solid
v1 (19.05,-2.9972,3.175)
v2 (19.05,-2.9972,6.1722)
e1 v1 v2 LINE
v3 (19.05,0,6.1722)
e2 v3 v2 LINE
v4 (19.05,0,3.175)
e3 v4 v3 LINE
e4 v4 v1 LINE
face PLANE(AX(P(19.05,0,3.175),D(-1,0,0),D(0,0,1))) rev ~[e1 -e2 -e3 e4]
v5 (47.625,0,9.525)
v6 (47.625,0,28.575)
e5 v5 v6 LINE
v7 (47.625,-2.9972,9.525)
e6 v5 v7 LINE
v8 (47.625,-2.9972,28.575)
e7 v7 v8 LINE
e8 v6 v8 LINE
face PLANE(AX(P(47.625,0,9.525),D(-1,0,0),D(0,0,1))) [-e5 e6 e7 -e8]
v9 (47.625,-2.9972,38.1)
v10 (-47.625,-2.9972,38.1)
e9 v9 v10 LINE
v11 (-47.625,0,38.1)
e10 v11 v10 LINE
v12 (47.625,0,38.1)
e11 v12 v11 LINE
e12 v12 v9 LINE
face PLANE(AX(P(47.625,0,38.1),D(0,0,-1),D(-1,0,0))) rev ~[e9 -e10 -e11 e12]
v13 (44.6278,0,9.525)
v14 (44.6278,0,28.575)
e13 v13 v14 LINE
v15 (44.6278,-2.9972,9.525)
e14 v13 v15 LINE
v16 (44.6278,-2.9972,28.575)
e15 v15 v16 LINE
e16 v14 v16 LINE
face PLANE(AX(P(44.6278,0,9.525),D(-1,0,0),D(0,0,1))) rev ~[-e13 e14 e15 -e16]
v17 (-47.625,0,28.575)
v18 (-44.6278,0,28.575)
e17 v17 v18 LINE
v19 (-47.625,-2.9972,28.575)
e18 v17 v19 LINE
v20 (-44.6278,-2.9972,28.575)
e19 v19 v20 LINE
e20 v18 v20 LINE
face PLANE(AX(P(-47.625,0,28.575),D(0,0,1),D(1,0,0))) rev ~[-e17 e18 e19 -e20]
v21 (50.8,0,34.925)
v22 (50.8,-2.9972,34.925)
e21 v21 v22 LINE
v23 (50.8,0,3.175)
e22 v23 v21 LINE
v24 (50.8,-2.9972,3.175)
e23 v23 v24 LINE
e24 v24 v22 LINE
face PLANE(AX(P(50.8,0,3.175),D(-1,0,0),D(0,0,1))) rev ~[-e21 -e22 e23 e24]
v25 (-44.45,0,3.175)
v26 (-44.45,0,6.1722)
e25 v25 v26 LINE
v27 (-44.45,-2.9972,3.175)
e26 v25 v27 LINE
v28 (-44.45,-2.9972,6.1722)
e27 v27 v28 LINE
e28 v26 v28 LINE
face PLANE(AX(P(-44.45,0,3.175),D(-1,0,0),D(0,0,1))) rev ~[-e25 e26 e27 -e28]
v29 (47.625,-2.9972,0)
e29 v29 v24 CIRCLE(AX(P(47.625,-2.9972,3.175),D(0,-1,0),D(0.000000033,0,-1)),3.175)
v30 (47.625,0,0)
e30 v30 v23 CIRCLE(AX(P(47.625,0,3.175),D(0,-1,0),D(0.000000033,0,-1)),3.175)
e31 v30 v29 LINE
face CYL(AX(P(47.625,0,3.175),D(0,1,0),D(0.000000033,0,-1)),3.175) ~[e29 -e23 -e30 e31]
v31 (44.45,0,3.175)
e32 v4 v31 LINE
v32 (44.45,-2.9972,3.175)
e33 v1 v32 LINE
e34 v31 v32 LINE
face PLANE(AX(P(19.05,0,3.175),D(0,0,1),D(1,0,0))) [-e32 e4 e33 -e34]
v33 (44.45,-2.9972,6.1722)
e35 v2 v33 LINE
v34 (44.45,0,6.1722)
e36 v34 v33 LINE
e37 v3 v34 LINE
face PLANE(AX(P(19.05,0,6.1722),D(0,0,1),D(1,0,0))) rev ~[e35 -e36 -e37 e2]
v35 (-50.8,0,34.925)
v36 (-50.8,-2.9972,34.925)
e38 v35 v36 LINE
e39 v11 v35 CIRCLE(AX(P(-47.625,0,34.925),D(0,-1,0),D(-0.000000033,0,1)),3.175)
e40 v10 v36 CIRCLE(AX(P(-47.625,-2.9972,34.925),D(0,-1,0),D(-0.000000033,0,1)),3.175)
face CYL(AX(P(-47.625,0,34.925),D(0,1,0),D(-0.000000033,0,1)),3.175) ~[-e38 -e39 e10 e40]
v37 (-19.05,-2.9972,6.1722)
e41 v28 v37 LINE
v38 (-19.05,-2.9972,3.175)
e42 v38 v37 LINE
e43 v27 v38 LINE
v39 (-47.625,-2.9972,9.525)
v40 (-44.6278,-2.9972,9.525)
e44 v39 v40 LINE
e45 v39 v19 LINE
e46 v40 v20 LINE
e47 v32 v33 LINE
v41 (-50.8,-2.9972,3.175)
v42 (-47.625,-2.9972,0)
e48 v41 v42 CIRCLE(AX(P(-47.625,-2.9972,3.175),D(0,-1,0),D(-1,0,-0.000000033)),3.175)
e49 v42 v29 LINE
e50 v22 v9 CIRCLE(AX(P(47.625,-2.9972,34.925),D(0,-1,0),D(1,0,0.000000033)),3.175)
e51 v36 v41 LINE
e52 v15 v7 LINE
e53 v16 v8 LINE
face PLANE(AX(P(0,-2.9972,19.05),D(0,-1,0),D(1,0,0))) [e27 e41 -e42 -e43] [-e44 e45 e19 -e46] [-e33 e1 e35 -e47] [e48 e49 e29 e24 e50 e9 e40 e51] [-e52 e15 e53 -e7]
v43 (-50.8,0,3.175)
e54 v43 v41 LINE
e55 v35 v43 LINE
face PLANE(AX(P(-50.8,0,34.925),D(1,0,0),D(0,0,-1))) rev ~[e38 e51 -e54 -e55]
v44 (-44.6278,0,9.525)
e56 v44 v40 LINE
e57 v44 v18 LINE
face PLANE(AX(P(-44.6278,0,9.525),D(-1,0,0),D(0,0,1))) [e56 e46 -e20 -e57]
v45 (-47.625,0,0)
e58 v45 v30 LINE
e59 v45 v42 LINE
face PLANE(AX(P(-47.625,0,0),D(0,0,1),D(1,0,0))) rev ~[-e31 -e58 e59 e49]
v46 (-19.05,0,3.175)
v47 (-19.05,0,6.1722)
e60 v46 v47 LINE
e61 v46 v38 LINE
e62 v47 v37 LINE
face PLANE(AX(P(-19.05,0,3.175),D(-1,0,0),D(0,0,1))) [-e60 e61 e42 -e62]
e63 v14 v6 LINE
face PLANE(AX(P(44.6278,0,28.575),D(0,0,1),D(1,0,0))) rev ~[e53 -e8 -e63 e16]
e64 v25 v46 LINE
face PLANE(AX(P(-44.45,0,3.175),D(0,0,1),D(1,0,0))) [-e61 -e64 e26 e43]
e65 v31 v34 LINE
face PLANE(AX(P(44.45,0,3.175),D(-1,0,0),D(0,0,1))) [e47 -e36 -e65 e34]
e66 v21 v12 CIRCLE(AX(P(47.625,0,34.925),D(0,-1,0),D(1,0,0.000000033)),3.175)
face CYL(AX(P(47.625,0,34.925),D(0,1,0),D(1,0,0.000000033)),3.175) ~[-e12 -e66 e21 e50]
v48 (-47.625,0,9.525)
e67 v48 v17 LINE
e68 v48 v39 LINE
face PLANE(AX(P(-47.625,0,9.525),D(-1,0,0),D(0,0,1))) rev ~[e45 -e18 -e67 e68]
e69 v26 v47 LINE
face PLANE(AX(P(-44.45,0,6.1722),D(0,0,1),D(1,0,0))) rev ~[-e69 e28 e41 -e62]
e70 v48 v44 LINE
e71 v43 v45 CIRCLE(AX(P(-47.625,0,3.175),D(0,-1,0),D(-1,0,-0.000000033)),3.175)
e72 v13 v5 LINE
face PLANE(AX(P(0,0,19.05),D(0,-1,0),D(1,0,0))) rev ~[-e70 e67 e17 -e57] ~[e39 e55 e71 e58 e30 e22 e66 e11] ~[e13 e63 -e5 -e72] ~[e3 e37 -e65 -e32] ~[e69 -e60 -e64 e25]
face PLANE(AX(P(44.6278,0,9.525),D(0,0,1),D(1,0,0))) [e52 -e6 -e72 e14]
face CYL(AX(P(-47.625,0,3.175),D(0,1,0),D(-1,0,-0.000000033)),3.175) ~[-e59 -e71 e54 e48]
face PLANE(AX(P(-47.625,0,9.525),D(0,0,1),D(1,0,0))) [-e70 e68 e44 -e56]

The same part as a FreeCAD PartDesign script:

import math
import FreeCAD as App
import Part
import Sketcher
from FreeCAD import Vector
Q = App.Units.Quantity

doc = App.newDocument("Part")
params = doc.addObject("Spreadsheet::Sheet", "Params")
for row, (alias, value) in enumerate([
    ("sketch1_width", "1 in"),
    ("sketch1_radius", "0.125 in"),
    ("sketch1_height", "1.25 in"),
    ("sketch1_height2", "0.75 in"),
    ("sketch1_width2", "0.118 in"),
    ("pad1_length", "0.118 in"),
], start=1):
    params.set(f"A{row}", alias)
    params.set(f"B{row}", "=" + value)
    params.setAlias(f"B{row}", alias)

body = doc.addObject("PartDesign::Body", "Body")

sketch1 = body.newObject("Sketcher::SketchObject", "Sketch")
sketch1.AttachmentSupport = (doc.getObject("XZ_Plane"), [""])
sketch1.MapMode = "FlatFace"
sketch1.addGeometry([
    Part.ArcOfCircle(Part.Circle(Vector(-47.6, 3.2, 0), Vector(0, 0, 1), 3.2), math.radians(-180), math.radians(-90)),
    Part.LineSegment(Vector(-47.6, 0, 0), Vector(47.6, 0, 0)),
    Part.ArcOfCircle(Part.Circle(Vector(47.6, 3.2, 0), Vector(0, 0, 1), 3.2), math.radians(-90), math.radians(0)),
    Part.LineSegment(Vector(50.8, 3.2, 0), Vector(50.8, 34.9, 0)),
    Part.ArcOfCircle(Part.Circle(Vector(47.6, 34.9, 0), Vector(0, 0, 1), 3.2), math.radians(0), math.radians(90)),
    Part.LineSegment(Vector(47.6, 38.1, 0), Vector(-47.6, 38.1, 0)),
    Part.ArcOfCircle(Part.Circle(Vector(-47.6, 34.9, 0), Vector(0, 0, 1), 3.2), math.radians(90), math.radians(180)),
    Part.LineSegment(Vector(-50.8, 34.9, 0), Vector(-50.8, 3.2, 0)),
    Part.LineSegment(Vector(-19.1, 3.2, 0), Vector(-44.5, 3.2, 0)),
    Part.LineSegment(Vector(-44.5, 3.2, 0), Vector(-44.5, 6.2, 0)),
    Part.LineSegment(Vector(-44.5, 6.2, 0), Vector(-19.1, 6.2, 0)),
    Part.LineSegment(Vector(-19.1, 6.2, 0), Vector(-19.1, 3.2, 0)),
    Part.LineSegment(Vector(44.5, 3.2, 0), Vector(19.1, 3.2, 0)),
    Part.LineSegment(Vector(19.1, 3.2, 0), Vector(19.1, 6.2, 0)),
    Part.LineSegment(Vector(19.1, 6.2, 0), Vector(44.5, 6.2, 0)),
    Part.LineSegment(Vector(44.5, 6.2, 0), Vector(44.5, 3.2, 0)),
    Part.LineSegment(Vector(-44.6, 9.5, 0), Vector(-47.6, 9.5, 0)),
    Part.LineSegment(Vector(-47.6, 9.5, 0), Vector(-47.6, 28.6, 0)),
    Part.LineSegment(Vector(-47.6, 28.6, 0), Vector(-44.6, 28.6, 0)),
    Part.LineSegment(Vector(-44.6, 28.6, 0), Vector(-44.6, 9.5, 0)),
    Part.LineSegment(Vector(47.6, 9.5, 0), Vector(44.6, 9.5, 0)),
    Part.LineSegment(Vector(44.6, 9.5, 0), Vector(44.6, 28.6, 0)),
    Part.LineSegment(Vector(44.6, 28.6, 0), Vector(47.6, 28.6, 0)),
    Part.LineSegment(Vector(47.6, 28.6, 0), Vector(47.6, 9.5, 0)),
], False)
sketch1.addConstraint([
    Sketcher.Constraint("Tangent", 0, 2, 1, 1),
    Sketcher.Constraint("Tangent", 1, 2, 2, 1),
    Sketcher.Constraint("Tangent", 2, 2, 3, 1),
    Sketcher.Constraint("Tangent", 3, 2, 4, 1),
    Sketcher.Constraint("Tangent", 4, 2, 5, 1),
    Sketcher.Constraint("Tangent", 5, 2, 6, 1),
    Sketcher.Constraint("Tangent", 6, 2, 7, 1),
    Sketcher.Constraint("Tangent", 7, 2, 0, 1),
    Sketcher.Constraint("Coincident", 8, 2, 9, 1),
    Sketcher.Constraint("Coincident", 9, 2, 10, 1),
    Sketcher.Constraint("Coincident", 10, 2, 11, 1),
    Sketcher.Constraint("Coincident", 11, 2, 8, 1),
    Sketcher.Constraint("Coincident", 12, 2, 13, 1),
    Sketcher.Constraint("Coincident", 13, 2, 14, 1),
    Sketcher.Constraint("Coincident", 14, 2, 15, 1),
    Sketcher.Constraint("Coincident", 15, 2, 12, 1),
    Sketcher.Constraint("Coincident", 16, 2, 17, 1),
    Sketcher.Constraint("Coincident", 17, 2, 18, 1),
    Sketcher.Constraint("Coincident", 18, 2, 19, 1),
    Sketcher.Constraint("Coincident", 19, 2, 16, 1),
    Sketcher.Constraint("Coincident", 20, 2, 21, 1),
    Sketcher.Constraint("Coincident", 21, 2, 22, 1),
    Sketcher.Constraint("Coincident", 22, 2, 23, 1),
    Sketcher.Constraint("Coincident", 23, 2, 20, 1),
    Sketcher.Constraint("Horizontal", 1),
    Sketcher.Constraint("Vertical", 3),
    Sketcher.Constraint("Horizontal", 5),
    Sketcher.Constraint("Vertical", 7),
    Sketcher.Constraint("Horizontal", 8),
    Sketcher.Constraint("Vertical", 9),
    Sketcher.Constraint("Horizontal", 10),
    Sketcher.Constraint("Vertical", 11),
    Sketcher.Constraint("Horizontal", 12),
    Sketcher.Constraint("Vertical", 13),
    Sketcher.Constraint("Horizontal", 14),
    Sketcher.Constraint("Vertical", 15),
    Sketcher.Constraint("Horizontal", 16),
    Sketcher.Constraint("Vertical", 17),
    Sketcher.Constraint("Horizontal", 18),
    Sketcher.Constraint("Vertical", 19),
    Sketcher.Constraint("Horizontal", 20),
    Sketcher.Constraint("Vertical", 21),
    Sketcher.Constraint("Horizontal", 22),
    Sketcher.Constraint("Vertical", 23),
    Sketcher.Constraint("Equal", 0, 2),
    Sketcher.Constraint("Equal", 2, 4),
    Sketcher.Constraint("Equal", 4, 6),
    Sketcher.Constraint("Symmetric", 0, 2, 1, 2, -1, 1),
    Sketcher.Constraint("Symmetric", 11, 2, 12, 2, -2),
    Sketcher.Constraint("Symmetric", 9, 2, 14, 2, -2),
    Sketcher.Constraint("Symmetric", 19, 2, 20, 2, -2),
    Sketcher.Constraint("Symmetric", 17, 2, 22, 2, -2),
    Sketcher.Constraint("Horizontal", 7, 2, 8, 2),
    Sketcher.Constraint("Vertical", 5, 2, 16, 2),
    Sketcher.Constraint("Equal", 22, 9),
    Sketcher.Constraint("DistanceX", 8, 2, 8, 1, Q("1 in")),
    Sketcher.Constraint("DistanceX", -1, 1, 2, 2, Q("2 in")),
    Sketcher.Constraint("Radius", 0, Q("0.125 in")),
    Sketcher.Constraint("DistanceY", 3, 1, 3, 2, Q("1.25 in")),
    Sketcher.Constraint("DistanceY", 17, 1, 17, 2, Q("0.75 in")),
    Sketcher.Constraint("DistanceX", 11, 2, 12, 2, Q("1.5 in")),
    Sketcher.Constraint("DistanceX", 16, 2, 16, 1, Q("0.118 in")),
    Sketcher.Constraint("DistanceY", 0, 3, 16, 2, Q("0.25 in")),
])
sketch1.setExpression("Constraints[55]", "Params.sketch1_width")
sketch1.setExpression("Constraints[57]", "Params.sketch1_radius")
sketch1.setExpression("Constraints[58]", "Params.sketch1_height")
sketch1.setExpression("Constraints[59]", "Params.sketch1_height2")
sketch1.setExpression("Constraints[61]", "Params.sketch1_width2")
pad1 = body.newObject("PartDesign::Pad", "Pad")
pad1.Profile = sketch1
pad1.setExpression("Length", "Params.pad1_length")

doc.recompute()
